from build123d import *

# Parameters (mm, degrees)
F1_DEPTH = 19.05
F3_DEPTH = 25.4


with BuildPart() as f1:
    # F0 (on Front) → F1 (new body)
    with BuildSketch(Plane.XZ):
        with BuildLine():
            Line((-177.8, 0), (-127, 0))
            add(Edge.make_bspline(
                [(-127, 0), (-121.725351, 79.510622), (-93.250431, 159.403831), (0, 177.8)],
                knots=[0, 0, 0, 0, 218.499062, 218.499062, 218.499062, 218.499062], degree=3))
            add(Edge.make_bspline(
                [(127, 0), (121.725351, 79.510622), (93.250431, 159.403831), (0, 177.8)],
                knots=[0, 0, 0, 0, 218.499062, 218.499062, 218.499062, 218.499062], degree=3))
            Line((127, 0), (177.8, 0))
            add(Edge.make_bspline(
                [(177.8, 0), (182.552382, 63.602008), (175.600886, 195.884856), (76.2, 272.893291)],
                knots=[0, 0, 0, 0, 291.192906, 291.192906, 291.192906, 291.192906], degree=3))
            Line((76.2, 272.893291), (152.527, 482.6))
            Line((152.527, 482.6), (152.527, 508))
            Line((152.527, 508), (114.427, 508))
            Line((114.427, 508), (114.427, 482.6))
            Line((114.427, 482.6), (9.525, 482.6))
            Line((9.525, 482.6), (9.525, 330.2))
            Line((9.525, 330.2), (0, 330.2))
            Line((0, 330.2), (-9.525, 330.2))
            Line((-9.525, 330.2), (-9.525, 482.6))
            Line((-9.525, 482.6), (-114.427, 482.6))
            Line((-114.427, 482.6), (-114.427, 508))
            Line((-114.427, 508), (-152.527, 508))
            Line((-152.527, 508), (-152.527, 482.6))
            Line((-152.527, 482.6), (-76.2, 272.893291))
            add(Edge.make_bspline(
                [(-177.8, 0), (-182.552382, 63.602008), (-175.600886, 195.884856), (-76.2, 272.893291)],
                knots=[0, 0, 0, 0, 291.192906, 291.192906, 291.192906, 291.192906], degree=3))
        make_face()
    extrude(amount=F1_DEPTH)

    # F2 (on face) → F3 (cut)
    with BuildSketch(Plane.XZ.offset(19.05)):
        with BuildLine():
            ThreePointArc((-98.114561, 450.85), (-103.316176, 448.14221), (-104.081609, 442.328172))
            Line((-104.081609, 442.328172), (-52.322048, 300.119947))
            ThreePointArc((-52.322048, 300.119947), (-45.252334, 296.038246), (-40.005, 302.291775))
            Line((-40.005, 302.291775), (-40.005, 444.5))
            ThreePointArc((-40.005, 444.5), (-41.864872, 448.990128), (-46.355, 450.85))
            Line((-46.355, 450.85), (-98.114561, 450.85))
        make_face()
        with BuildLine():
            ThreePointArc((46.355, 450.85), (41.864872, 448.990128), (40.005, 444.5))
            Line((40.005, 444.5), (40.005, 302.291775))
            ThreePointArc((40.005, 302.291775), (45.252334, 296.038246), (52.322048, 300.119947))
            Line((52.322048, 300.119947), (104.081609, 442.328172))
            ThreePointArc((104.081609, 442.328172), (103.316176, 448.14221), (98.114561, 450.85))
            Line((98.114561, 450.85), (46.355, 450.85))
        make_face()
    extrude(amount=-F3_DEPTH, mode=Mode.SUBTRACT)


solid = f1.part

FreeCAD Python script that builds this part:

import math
import FreeCAD as App
import Part
import Sketcher

V = App.Vector
Q = App.Units.Quantity

doc = App.newDocument("Part")
body = doc.addObject("PartDesign::Body", "Body")

# Sketch on XZ plane
sketch1 = body.newObject("Sketcher::SketchObject", "Sketch")
sketch1.AttachmentSupport = (doc.getObject("XZ_Plane"), [""])
sketch1.MapMode = "FlatFace"
sketch1.addGeometry([
    Part.LineSegment(V(-177.8, 0, 0), V(-127, 0, 0)),  # 0
    Part.BSplineCurve([V(-127, 0, 0), V(-121.725351, 79.510622, 0), V(-93.250431, 159.403831, 0), V(0, 177.8, 0)], [4, 4], [0, 218.499062], False, 3, [1, 1, 1, 1], False),  # 1
    Part.BSplineCurve([V(127, 0, 0), V(121.725351, 79.510622, 0), V(93.250431, 159.403831, 0), V(0, 177.8, 0)], [4, 4], [0, 218.499062], False, 3, [1, 1, 1, 1], False),  # 2
    Part.LineSegment(V(127, 0, 0), V(177.8, 0, 0)),  # 3
    Part.BSplineCurve([V(177.8, 0, 0), V(182.552382, 63.602008, 0), V(175.600886, 195.884856, 0), V(76.2, 272.893291, 0)], [4, 4], [0, 291.192906], False, 3, [1, 1, 1, 1], False),  # 4
    Part.LineSegment(V(76.2, 272.893291, 0), V(152.527, 482.6, 0)),  # 5
    Part.LineSegment(V(152.527, 482.6, 0), V(152.527, 508, 0)),  # 6
    Part.LineSegment(V(152.527, 508, 0), V(114.427, 508, 0)),  # 7
    Part.LineSegment(V(114.427, 508, 0), V(114.427, 482.6, 0)),  # 8
    Part.LineSegment(V(114.427, 482.6, 0), V(9.525, 482.6, 0)),  # 9
    Part.LineSegment(V(9.525, 482.6, 0), V(9.525, 330.2, 0)),  # 10
    Part.LineSegment(V(9.525, 330.2, 0), V(-9.525, 330.2, 0)),  # 11
    Part.LineSegment(V(-9.525, 330.2, 0), V(-9.525, 482.6, 0)),  # 12
    Part.LineSegment(V(-9.525, 482.6, 0), V(-114.427, 482.6, 0)),  # 13
    Part.LineSegment(V(-114.427, 482.6, 0), V(-114.427, 508, 0)),  # 14
    Part.LineSegment(V(-114.427, 508, 0), V(-152.527, 508, 0)),  # 15
    Part.LineSegment(V(-152.527, 508, 0), V(-152.527, 482.6, 0)),  # 16
    Part.LineSegment(V(-152.527, 482.6, 0), V(-76.2, 272.893291, 0)),  # 17
    Part.BSplineCurve([V(-177.8, 0, 0), V(-182.552382, 63.602008, 0), V(-175.600886, 195.884856, 0), V(-76.2, 272.893291, 0)], [4, 4], [0, 291.192906], False, 3, [1, 1, 1, 1], False),  # 18
], False)
sketch1.addConstraint([
    Sketcher.Constraint("Block", 1),
    Sketcher.Constraint("Block", 2),
    Sketcher.Constraint("Block", 4),
    Sketcher.Constraint("Block", 18),
    Sketcher.Constraint("Coincident", 0, 2, 1, 1),
    Sketcher.Constraint("Coincident", 2, 1, 3, 1),
    Sketcher.Constraint("Coincident", 3, 2, 4, 1),
    Sketcher.Constraint("Coincident", 4, 2, 5, 1),
    Sketcher.Constraint("Coincident", 5, 2, 6, 1),
    Sketcher.Constraint("Coincident", 6, 2, 7, 1),
    Sketcher.Constraint("Coincident", 7, 2, 8, 1),
    Sketcher.Constraint("Coincident", 8, 2, 9, 1),
    Sketcher.Constraint("Coincident", 9, 2, 10, 1),
    Sketcher.Constraint("Coincident", 10, 2, 11, 1),
    Sketcher.Constraint("Coincident", 11, 2, 12, 1),
    Sketcher.Constraint("Coincident", 12, 2, 13, 1),
    Sketcher.Constraint("Coincident", 13, 2, 14, 1),
    Sketcher.Constraint("Coincident", 14, 2, 15, 1),
    Sketcher.Constraint("Coincident", 15, 2, 16, 1),
    Sketcher.Constraint("Coincident", 16, 2, 17, 1),
    Sketcher.Constraint("Coincident", 17, 2, 18, 2),
    Sketcher.Constraint("Coincident", 18, 1, 0, 1),
    Sketcher.Constraint("Vertical", 6),
    Sketcher.Constraint("Horizontal", 7),
    Sketcher.Constraint("Vertical", 8),
    Sketcher.Constraint("Horizontal", 9),
    Sketcher.Constraint("Vertical", 10),
    Sketcher.Constraint("Horizontal", 11),
    Sketcher.Constraint("Vertical", 12),
    Sketcher.Constraint("Horizontal", 13),
    Sketcher.Constraint("Vertical", 14),
    Sketcher.Constraint("Horizontal", 15),
    Sketcher.Constraint("Vertical", 16),
    Sketcher.Constraint("Symmetric", 9, 2, 12, 2, -2),
    Sketcher.Constraint("Symmetric", 7, 2, 14, 2, -2),
    Sketcher.Constraint("Symmetric", 5, 2, 16, 2, -2),
    Sketcher.Constraint("Horizontal", 5, 2, 8, 2),
    Sketcher.Constraint("DistanceY", 6, 1, 6, 2, Q("1 in")),
    Sketcher.Constraint("DistanceY", 10, 2, 10, 1, Q("6 in")),
    Sketcher.Constraint("DistanceX", 7, 2, 7, 1, Q("1.5 in")),
    Sketcher.Constraint("DistanceY", -1, 1, 5, 2, Q("19 in")),
    Sketcher.Constraint("Angle", 5, Q("70 deg")),
    Sketcher.Constraint("DistanceX", 9, 2, 9, 1, Q("4.13 in")),
])
pad1 = body.newObject("PartDesign::Pad", "Pad")
pad1.Profile = sketch1
pad1.Length = Q("0.75 in")

# Sketch on XZ plane
sketch2 = body.newObject("Sketcher::SketchObject", "Sketch001")
sketch2.AttachmentSupport = (doc.getObject("XZ_Plane"), [""])
sketch2.MapMode = "FlatFace"
sketch2.AttachmentOffset = App.Placement(V(0, 0, 0.75 * 25.4), App.Rotation())
sketch2.addGeometry([
    Part.ArcOfCircle(Part.Circle(V(-98, 444, 0), V(0, 0, 1), 6), math.radians(90), math.radians(200)),  # 0
    Part.LineSegment(V(-104, 442, 0), V(-52, 300, 0)),  # 1
    Part.ArcOfCircle(Part.Circle(V(-46, 302, 0), V(0, 0, 1), 6), math.radians(-160), math.radians(0)),  # 2
    Part.LineSegment(V(-40, 302, 0), V(-40, 444, 0)),  # 3
    Part.ArcOfCircle(Part.Circle(V(-46, 444, 0), V(0, 0, 1), 6), math.radians(0), math.radians(90)),  # 4
    Part.LineSegment(V(-46, 451, 0), V(-98, 451, 0)),  # 5
    Part.ArcOfCircle(Part.Circle(V(46, 444, 0), V(0, 0, 1), 6), math.radians(90), math.radians(180)),  # 6
    Part.LineSegment(V(40, 444, 0), V(40, 302, 0)),  # 7
    Part.ArcOfCircle(Part.Circle(V(46, 302, 0), V(0, 0, 1), 6), math.radians(-180), math.radians(-20)),  # 8
    Part.LineSegment(V(52, 300, 0), V(104, 442, 0)),  # 9
    Part.ArcOfCircle(Part.Circle(V(98, 444, 0), V(0, 0, 1), 6), math.radians(-20), math.radians(90)),  # 10
    Part.LineSegment(V(98, 451, 0), V(46, 451, 0)),  # 11
], False)
sketch2.addConstraint([
    Sketcher.Constraint("Tangent", 0, 2, 1, 1),
    Sketcher.Constraint("Tangent", 1, 2, 2, 1),
    Sketcher.Constraint("Tangent", 2, 2, 3, 1),
    Sketcher.Constraint("Tangent", 3, 2, 4, 1),
    Sketcher.Constraint("Tangent", 4, 2, 5, 1),
    Sketcher.Constraint("Tangent", 5, 2, 0, 1),
    Sketcher.Constraint("Tangent", 6, 2, 7, 1),
    Sketcher.Constraint("Tangent", 7, 2, 8, 1),
    Sketcher.Constraint("Tangent", 8, 2, 9, 1),
    Sketcher.Constraint("Tangent", 9, 2, 10, 1),
    Sketcher.Constraint("Tangent", 10, 2, 11, 1),
    Sketcher.Constraint("Tangent", 11, 2, 6, 1),
    Sketcher.Constraint("Vertical", 3),
    Sketcher.Constraint("Horizontal", 5),
    Sketcher.Constraint("Vertical", 7),
    Sketcher.Constraint("Horizontal", 11),
    Sketcher.Constraint("Equal", 0, 2),
    Sketcher.Constraint("Equal", 2, 4),
    Sketcher.Constraint("Equal", 4, 6),
    Sketcher.Constraint("Equal", 6, 8),
    Sketcher.Constraint("Equal", 8, 10),
    Sketcher.Constraint("Symmetric", 4, 3, 6, 3, -2),
    Sketcher.Constraint("Symmetric", 1, 2, 8, 2, -2),
    Sketcher.Constraint("Radius", 0, Q("0.25 in")),
    Sketcher.Constraint("Angle", 1, Q("-70 deg")),
    Sketcher.Constraint("DistanceY", -1, 1, 0, 3, Q("17.5 in")),
    Sketcher.Constraint("DistanceX", 2, 2, 8, 3, Q("3.4 in")),
    Sketcher.Constraint("DistanceX", 5, 2, 5, 1, 51.759561),
])
pocket1 = body.newObject("PartDesign::Pocket", "Pocket")
pocket1.Profile = sketch2
pocket1.Length = Q("1 in")

doc.recompute()
